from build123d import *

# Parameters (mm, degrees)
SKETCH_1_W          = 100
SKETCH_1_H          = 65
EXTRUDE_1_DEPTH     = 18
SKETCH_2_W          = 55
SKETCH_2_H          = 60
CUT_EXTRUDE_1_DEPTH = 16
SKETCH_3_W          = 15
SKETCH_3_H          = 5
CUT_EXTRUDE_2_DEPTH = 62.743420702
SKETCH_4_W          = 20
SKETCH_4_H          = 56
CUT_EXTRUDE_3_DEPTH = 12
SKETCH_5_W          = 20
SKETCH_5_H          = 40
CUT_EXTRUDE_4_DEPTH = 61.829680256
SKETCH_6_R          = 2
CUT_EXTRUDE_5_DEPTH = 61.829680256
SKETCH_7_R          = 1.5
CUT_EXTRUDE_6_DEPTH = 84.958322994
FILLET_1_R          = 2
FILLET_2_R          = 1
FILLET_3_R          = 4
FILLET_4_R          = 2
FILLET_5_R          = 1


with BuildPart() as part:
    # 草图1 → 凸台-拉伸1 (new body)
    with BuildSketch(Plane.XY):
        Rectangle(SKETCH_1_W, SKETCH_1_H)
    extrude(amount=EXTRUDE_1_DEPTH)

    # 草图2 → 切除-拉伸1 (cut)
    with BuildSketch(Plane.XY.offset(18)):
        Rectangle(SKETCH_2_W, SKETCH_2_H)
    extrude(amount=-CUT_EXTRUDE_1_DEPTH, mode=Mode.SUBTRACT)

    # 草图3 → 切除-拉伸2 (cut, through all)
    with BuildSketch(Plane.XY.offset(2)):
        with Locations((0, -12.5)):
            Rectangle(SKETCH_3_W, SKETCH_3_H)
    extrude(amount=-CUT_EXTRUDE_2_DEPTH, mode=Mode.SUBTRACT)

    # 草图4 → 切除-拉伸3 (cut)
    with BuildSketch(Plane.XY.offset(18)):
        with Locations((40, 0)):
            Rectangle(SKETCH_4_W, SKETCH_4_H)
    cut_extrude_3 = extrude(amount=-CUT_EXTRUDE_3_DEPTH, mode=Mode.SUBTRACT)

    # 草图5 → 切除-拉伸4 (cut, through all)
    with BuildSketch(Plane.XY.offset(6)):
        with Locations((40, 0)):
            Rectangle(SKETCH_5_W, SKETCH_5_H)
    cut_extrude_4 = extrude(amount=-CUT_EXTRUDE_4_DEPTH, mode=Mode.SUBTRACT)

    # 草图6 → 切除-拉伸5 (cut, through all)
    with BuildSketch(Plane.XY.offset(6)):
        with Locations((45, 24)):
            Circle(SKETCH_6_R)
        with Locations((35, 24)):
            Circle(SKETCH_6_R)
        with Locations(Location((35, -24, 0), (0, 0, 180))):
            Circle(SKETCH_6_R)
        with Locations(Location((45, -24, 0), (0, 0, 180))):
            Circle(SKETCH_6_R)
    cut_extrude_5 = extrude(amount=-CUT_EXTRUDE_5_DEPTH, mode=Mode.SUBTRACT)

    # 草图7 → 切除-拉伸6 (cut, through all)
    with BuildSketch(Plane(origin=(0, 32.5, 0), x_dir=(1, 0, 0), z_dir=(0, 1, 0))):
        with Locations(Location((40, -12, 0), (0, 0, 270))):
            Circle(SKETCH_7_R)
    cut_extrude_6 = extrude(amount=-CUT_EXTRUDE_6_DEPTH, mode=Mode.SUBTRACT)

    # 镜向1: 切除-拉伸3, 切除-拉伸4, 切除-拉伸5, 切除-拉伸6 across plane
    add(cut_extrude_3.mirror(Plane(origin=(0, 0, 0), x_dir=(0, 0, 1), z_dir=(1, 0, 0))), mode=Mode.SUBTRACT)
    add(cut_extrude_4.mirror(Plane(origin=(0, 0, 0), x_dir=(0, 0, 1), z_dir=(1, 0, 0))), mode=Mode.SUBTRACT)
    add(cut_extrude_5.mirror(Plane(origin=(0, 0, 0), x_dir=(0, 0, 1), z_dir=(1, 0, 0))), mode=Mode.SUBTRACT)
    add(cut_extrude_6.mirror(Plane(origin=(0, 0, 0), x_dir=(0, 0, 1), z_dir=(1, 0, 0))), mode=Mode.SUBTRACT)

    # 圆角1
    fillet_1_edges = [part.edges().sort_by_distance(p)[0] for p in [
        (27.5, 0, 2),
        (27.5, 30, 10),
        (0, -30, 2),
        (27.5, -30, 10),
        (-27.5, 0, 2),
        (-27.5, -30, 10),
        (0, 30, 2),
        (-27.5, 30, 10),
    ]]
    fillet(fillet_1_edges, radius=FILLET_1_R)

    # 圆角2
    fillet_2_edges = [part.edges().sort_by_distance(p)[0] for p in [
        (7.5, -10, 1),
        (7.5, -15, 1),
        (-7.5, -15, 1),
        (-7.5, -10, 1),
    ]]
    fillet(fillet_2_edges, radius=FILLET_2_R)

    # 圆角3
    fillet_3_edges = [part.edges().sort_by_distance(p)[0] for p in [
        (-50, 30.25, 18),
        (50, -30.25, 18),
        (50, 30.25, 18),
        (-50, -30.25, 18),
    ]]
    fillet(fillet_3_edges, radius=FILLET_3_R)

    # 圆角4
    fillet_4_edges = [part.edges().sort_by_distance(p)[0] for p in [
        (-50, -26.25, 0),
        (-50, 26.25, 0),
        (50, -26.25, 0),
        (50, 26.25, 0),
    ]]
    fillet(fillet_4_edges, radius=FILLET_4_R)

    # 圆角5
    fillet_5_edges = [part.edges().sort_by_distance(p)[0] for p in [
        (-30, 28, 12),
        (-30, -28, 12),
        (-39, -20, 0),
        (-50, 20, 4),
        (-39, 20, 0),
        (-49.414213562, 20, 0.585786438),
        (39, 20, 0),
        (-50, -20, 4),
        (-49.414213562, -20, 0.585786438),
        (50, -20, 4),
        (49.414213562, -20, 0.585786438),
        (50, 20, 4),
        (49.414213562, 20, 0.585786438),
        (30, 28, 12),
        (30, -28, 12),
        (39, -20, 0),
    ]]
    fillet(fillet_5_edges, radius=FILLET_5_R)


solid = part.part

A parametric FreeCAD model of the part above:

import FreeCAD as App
import Part
import Sketcher


def edges_at(feature, points):
    """Names of the edges that pass closest to the given points."""
    edges = feature.Shape.Edges
    near = lambda p: min(range(len(edges)), key=lambda i: edges[i].distToShape(Part.Vertex(*p))[0])
    return sorted({f"Edge{near(p) + 1}" for p in points})


def add_polygon(sketch, points):
    """Adds a closed chain of lines whose ends are joined by coincident constraints."""
    first, n = sketch.GeometryCount, len(points)
    for a, b in zip(points, points[1:] + points[:1]):
        sketch.addGeometry(Part.LineSegment(App.Vector(*a, 0), App.Vector(*b, 0)), False)
    for i in range(n):
        sketch.addConstraint(Sketcher.Constraint("Coincident", first + i, 2, first + (i + 1) % n, 1))

doc = App.newDocument("Part")
body = doc.addObject("PartDesign::Body", "Body")

# Sketch on XY plane
sketch1 = doc.addObject("Sketcher::SketchObject", "Sketch")
body.addObject(sketch1)
sketch1.AttachmentSupport = (doc.XY_Plane, [""])
sketch1.MapMode = "FlatFace"
add_polygon(sketch1, [(-50, 32.5), (-50, -32.5), (50, -32.5), (50, 32.5)])  # lines 0-3
sketch1.addConstraint([
    Sketcher.Constraint("Vertical", 0),
    Sketcher.Constraint("Horizontal", 1),
    Sketcher.Constraint("Vertical", 2),
    Sketcher.Constraint("Horizontal", 3),
    Sketcher.Constraint("Symmetric", 0, 2, 2, 2, -1, 1),
    Sketcher.Constraint("DistanceX", 1, 1, 1, 2, 100.0),
    Sketcher.Constraint("DistanceY", 0, 2, 0, 1, 65.0),
])
pad1 = doc.addObject("PartDesign::Pad", "Pad")
body.addObject(pad1)
pad1.Profile = sketch1
pad1.Length = 18

# Sketch on XY plane
sketch2 = doc.addObject("Sketcher::SketchObject", "Sketch001")
body.addObject(sketch2)
sketch2.AttachmentSupport = (doc.XY_Plane, [""])
sketch2.MapMode = "FlatFace"
sketch2.AttachmentOffset = App.Placement(App.Vector(0, 0, 18), App.Rotation())
add_polygon(sketch2, [(-27.5, 30), (-27.5, -30), (27.5, -30), (27.5, 30)])  # lines 0-3
sketch2.addConstraint([
    Sketcher.Constraint("Vertical", 0),
    Sketcher.Constraint("Horizontal", 1),
    Sketcher.Constraint("Vertical", 2),
    Sketcher.Constraint("Horizontal", 3),
    Sketcher.Constraint("Symmetric", 0, 2, 2, 2, -1, 1),
    Sketcher.Constraint("DistanceX", 1, 1, 1, 2, 55.0),
    Sketcher.Constraint("DistanceY", 0, 2, 0, 1, 60.0),
])
pocket1 = doc.addObject("PartDesign::Pocket", "Pocket")
body.addObject(pocket1)
pocket1.Profile = sketch2
pocket1.Length = 16

# Sketch on XY plane
sketch3 = doc.addObject("Sketcher::SketchObject", "Sketch002")
body.addObject(sketch3)
sketch3.AttachmentSupport = (doc.XY_Plane, [""])
sketch3.MapMode = "FlatFace"
sketch3.AttachmentOffset = App.Placement(App.Vector(0, 0, 2), App.Rotation())
add_polygon(sketch3, [(-7.5, -10), (-7.5, -15), (7.5, -15), (7.5, -10)])  # lines 0-3
sketch3.addConstraint([
    Sketcher.Constraint("Vertical", 0),
    Sketcher.Constraint("Horizontal", 1),
    Sketcher.Constraint("Vertical", 2),
    Sketcher.Constraint("Horizontal", 3),
    Sketcher.Constraint("DistanceX", 1, 1, 1, 2, 15.0),
    Sketcher.Constraint("DistanceY", 0, 2, 0, 1, 5.0),
    Sketcher.Constraint("DistanceY", 0, 2, -1, 1, 15.0),
    Sketcher.Constraint("DistanceX", 0, 2, -1, 1, 7.5),
])
pocket2 = doc.addObject("PartDesign::Pocket", "Pocket001")
body.addObject(pocket2)
pocket2.Profile = sketch3
pocket2.Type = "ThroughAll"

# Sketch on XY plane
sketch4 = doc.addObject("Sketcher::SketchObject", "Sketch003")
body.addObject(sketch4)
sketch4.AttachmentSupport = (doc.XY_Plane, [""])
sketch4.MapMode = "FlatFace"
sketch4.AttachmentOffset = App.Placement(App.Vector(0, 0, 18), App.Rotation())
add_polygon(sketch4, [(30, 28), (30, -28), (50, -28), (50, 28)])  # lines 0-3
sketch4.addConstraint([
    Sketcher.Constraint("Vertical", 0),
    Sketcher.Constraint("Horizontal", 1),
    Sketcher.Constraint("Vertical", 2),
    Sketcher.Constraint("Horizontal", 3),
    Sketcher.Constraint("DistanceX", 1, 1, 1, 2, 20.0),
    Sketcher.Constraint("DistanceY", 0, 2, 0, 1, 56.0),
    Sketcher.Constraint("DistanceX", -1, 1, 0, 2, 30.0),
    Sketcher.Constraint("DistanceY", 0, 2, -1, 1, 28.0),
])
pocket3 = doc.addObject("PartDesign::Pocket", "Pocket002")
body.addObject(pocket3)
pocket3.Profile = sketch4
pocket3.Length = 12

# Sketch on XY plane
sketch5 = doc.addObject("Sketcher::SketchObject", "Sketch004")
body.addObject(sketch5)
sketch5.AttachmentSupport = (doc.XY_Plane, [""])
sketch5.MapMode = "FlatFace"
sketch5.AttachmentOffset = App.Placement(App.Vector(0, 0, 6), App.Rotation())
add_polygon(sketch5, [(30, 20), (30, -20), (50, -20), (50, 20)])  # lines 0-3
sketch5.addConstraint([
    Sketcher.Constraint("Vertical", 0),
    Sketcher.Constraint("Horizontal", 1),
    Sketcher.Constraint("Vertical", 2),
    Sketcher.Constraint("Horizontal", 3),
    Sketcher.Constraint("DistanceX", 1, 1, 1, 2, 20.0),
    Sketcher.Constraint("DistanceY", 0, 2, 0, 1, 40.0),
    Sketcher.Constraint("DistanceX", -1, 1, 0, 2, 30.0),
    Sketcher.Constraint("DistanceY", 0, 2, -1, 1, 20.0),
])
pocket4 = doc.addObject("PartDesign::Pocket", "Pocket003")
body.addObject(pocket4)
pocket4.Profile = sketch5
pocket4.Type = "ThroughAll"

# Sketch on XY plane
sketch6 = doc.addObject("Sketcher::SketchObject", "Sketch005")
body.addObject(sketch6)
sketch6.AttachmentSupport = (doc.XY_Plane, [""])
sketch6.MapMode = "FlatFace"
sketch6.AttachmentOffset = App.Placement(App.Vector(0, 0, 6), App.Rotation())
sketch6.addGeometry([
    Part.Circle(App.Vector(45, 24, 0), App.Vector(0, 0, 1), 2),
    Part.Circle(App.Vector(35, 24, 0), App.Vector(0, 0, 1), 2),
    Part.Circle(App.Vector(35, -24, 0), App.Vector(0, 0, 1), 2),
    Part.Circle(App.Vector(45, -24, 0), App.Vector(0, 0, 1), 2),
], False)
sketch6.addConstraint([
    Sketcher.Constraint("Equal", 0, 1),
    Sketcher.Constraint("Equal", 1, 2),
    Sketcher.Constraint("Equal", 2, 3),
    Sketcher.Constraint("Symmetric", 1, 3, 2, 3, -1),
    Sketcher.Constraint("Symmetric", 0, 3, 3, 3, -1),
    Sketcher.Constraint("Horizontal", 0, 3, 1, 3),
    Sketcher.Constraint("Diameter", 0, 4.0),
    Sketcher.Constraint("DistanceX", -1, 1, 0, 3, 45.0),
    Sketcher.Constraint("DistanceY", -1, 1, 0, 3, 24.0),
    Sketcher.Constraint("DistanceX", -1, 1, 1, 3, 35.0),
])
pocket5 = doc.addObject("PartDesign::Pocket", "Pocket004")
body.addObject(pocket5)
pocket5.Profile = sketch6
pocket5.Type = "ThroughAll"

# Sketch on XZ plane
sketch7 = doc.addObject("Sketcher::SketchObject", "Sketch006")
body.addObject(sketch7)
sketch7.AttachmentSupport = (doc.XZ_Plane, [""])
sketch7.MapMode = "FlatFace"
sketch7.AttachmentOffset = App.Placement(App.Vector(0, 0, -32.5), App.Rotation())
sketch7.addGeometry(Part.Circle(App.Vector(40, 12, 0), App.Vector(0, 0, 1), 1.5), False)
sketch7.addConstraint([
    Sketcher.Constraint("Diameter", 0, 3.0),
    Sketcher.Constraint("DistanceX", -1, 1, 0, 3, 40.0),
    Sketcher.Constraint("DistanceY", -1, 1, 0, 3, 12.0),
])
pocket6 = doc.addObject("PartDesign::Pocket", "Pocket005")
body.addObject(pocket6)
pocket6.Profile = sketch7
pocket6.Type = "ThroughAll"
pocket6.Reversed = True
doc.recompute()

mirrored = doc.addObject("PartDesign::Mirrored", "Mirrored")
body.addObject(mirrored)
mirrored.Originals = [pocket3, pocket4, pocket5, pocket6]
mirrored.MirrorPlane = (doc.YZ_Plane, [""])
body.Tip = mirrored
doc.recompute()

fillet = doc.addObject("PartDesign::Fillet", "Fillet")
body.addObject(fillet)
fillet.Base = (mirrored, edges_at(mirrored, [
    (27.5, 0, 2),
    (27.5, 30, 10),
    (0, -30, 2),
    (27.5, -30, 10),
    (-27.5, 0, 2),
    (-27.5, -30, 10),
    (0, 30, 2),
    (-27.5, 30, 10),
]))
fillet.Radius = 2
doc.recompute()

fillet2 = doc.addObject("PartDesign::Fillet", "Fillet001")
body.addObject(fillet2)
fillet2.Base = (fillet, edges_at(fillet, [
    (7.5, -10, 1),
    (7.5, -15, 1),
    (-7.5, -15, 1),
    (-7.5, -10, 1),
]))
fillet2.Radius = 1
doc.recompute()

fillet3 = doc.addObject("PartDesign::Fillet", "Fillet002")
body.addObject(fillet3)
fillet3.Base = (fillet2, edges_at(fillet2, [
    (-50, 30.25, 18),
    (50, -30.25, 18),
    (50, 30.25, 18),
    (-50, -30.25, 18),
]))
fillet3.Radius = 4
doc.recompute()

fillet4 = doc.addObject("PartDesign::Fillet", "Fillet003")
body.addObject(fillet4)
fillet4.Base = (fillet3, edges_at(fillet3, [
    (-50, -26.25, 0),
    (-50, 26.25, 0),
    (50, -26.25, 0),
    (50, 26.25, 0),
]))
fillet4.Radius = 2
doc.recompute()

fillet5 = doc.addObject("PartDesign::Fillet", "Fillet004")
body.addObject(fillet5)
fillet5.Base = (fillet4, edges_at(fillet4, [
    (-30, 28, 12),
    (-30, -28, 12),
    (-39, -20, 0),
    (-50, 20, 4),
    (-39, 20, 0),
    (-49.414, 20, 0.586),
    (39, 20, 0),
    (-50, -20, 4),
    (-49.414, -20, 0.586),
    (50, -20, 4),
    (49.414, -20, 0.586),
    (50, 20, 4),
    (49.414, 20, 0.586),
    (30, 28, 12),
    (30, -28, 12),
    (39, -20, 0),
]))
fillet5.Radius = 1

doc.recompute()
